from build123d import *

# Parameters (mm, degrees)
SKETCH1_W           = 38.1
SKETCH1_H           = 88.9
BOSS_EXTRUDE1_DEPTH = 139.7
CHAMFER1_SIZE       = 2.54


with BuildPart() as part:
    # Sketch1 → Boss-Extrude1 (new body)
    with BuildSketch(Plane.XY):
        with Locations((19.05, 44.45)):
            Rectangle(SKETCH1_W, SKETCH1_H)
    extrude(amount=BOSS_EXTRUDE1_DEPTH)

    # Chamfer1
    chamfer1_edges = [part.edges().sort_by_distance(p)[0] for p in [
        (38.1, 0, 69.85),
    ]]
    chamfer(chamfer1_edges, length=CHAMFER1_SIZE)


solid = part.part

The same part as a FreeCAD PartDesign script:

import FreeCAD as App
import Part
import Sketcher
Q = App.Units.Quantity


def edges_at(feature, points):
    """Names of the edges that pass closest to the given points."""
    edges = feature.Shape.Edges
    near = lambda p: min(range(len(edges)), key=lambda i: edges[i].distToShape(Part.Vertex(*p))[0])
    return sorted({f"Edge{near(p) + 1}" for p in points})


def add_polygon(sketch, points):
    """Adds a closed chain of lines whose ends are joined by coincident constraints."""
    first, n = sketch.GeometryCount, len(points)
    for a, b in zip(points, points[1:] + points[:1]):
        sketch.addGeometry(Part.LineSegment(App.Vector(*a, 0), App.Vector(*b, 0)), False)
    for i in range(n):
        sketch.addConstraint(Sketcher.Constraint("Coincident", first + i, 2, first + (i + 1) % n, 1))

doc = App.newDocument("Part")
body = doc.addObject("PartDesign::Body", "Body")

sketch1 = body.newObject("Sketcher::SketchObject", "Sketch")
sketch1.AttachmentSupport = (doc.getObject("XY_Plane"), [""])
sketch1.MapMode = "FlatFace"
add_polygon(sketch1, [(0, 89), (0, 0), (38, 0), (38, 89)])
sketch1.addConstraint([
    Sketcher.Constraint("Vertical", 0),
    Sketcher.Constraint("Horizontal", 1),
    Sketcher.Constraint("Vertical", 2),
    Sketcher.Constraint("Horizontal", 3),
    Sketcher.Constraint("Coincident", 0, 2, -1, 1),
    Sketcher.Constraint("DistanceX", 1, 1, 1, 2, Q("1.5 in")),
    Sketcher.Constraint("DistanceY", 0, 2, 0, 1, Q("3.5 in")),
])
pad1 = body.newObject("PartDesign::Pad", "Pad")
pad1.Profile = sketch1
pad1.Length = Q("5.5 in")
doc.recompute()

chamfer = body.newObject("PartDesign::Chamfer", "Chamfer")
chamfer.Base = (pad1, edges_at(pad1, [(38.1, 0, 69.85)]))
chamfer.Size = Q("0.1 in")

doc.recompute()
